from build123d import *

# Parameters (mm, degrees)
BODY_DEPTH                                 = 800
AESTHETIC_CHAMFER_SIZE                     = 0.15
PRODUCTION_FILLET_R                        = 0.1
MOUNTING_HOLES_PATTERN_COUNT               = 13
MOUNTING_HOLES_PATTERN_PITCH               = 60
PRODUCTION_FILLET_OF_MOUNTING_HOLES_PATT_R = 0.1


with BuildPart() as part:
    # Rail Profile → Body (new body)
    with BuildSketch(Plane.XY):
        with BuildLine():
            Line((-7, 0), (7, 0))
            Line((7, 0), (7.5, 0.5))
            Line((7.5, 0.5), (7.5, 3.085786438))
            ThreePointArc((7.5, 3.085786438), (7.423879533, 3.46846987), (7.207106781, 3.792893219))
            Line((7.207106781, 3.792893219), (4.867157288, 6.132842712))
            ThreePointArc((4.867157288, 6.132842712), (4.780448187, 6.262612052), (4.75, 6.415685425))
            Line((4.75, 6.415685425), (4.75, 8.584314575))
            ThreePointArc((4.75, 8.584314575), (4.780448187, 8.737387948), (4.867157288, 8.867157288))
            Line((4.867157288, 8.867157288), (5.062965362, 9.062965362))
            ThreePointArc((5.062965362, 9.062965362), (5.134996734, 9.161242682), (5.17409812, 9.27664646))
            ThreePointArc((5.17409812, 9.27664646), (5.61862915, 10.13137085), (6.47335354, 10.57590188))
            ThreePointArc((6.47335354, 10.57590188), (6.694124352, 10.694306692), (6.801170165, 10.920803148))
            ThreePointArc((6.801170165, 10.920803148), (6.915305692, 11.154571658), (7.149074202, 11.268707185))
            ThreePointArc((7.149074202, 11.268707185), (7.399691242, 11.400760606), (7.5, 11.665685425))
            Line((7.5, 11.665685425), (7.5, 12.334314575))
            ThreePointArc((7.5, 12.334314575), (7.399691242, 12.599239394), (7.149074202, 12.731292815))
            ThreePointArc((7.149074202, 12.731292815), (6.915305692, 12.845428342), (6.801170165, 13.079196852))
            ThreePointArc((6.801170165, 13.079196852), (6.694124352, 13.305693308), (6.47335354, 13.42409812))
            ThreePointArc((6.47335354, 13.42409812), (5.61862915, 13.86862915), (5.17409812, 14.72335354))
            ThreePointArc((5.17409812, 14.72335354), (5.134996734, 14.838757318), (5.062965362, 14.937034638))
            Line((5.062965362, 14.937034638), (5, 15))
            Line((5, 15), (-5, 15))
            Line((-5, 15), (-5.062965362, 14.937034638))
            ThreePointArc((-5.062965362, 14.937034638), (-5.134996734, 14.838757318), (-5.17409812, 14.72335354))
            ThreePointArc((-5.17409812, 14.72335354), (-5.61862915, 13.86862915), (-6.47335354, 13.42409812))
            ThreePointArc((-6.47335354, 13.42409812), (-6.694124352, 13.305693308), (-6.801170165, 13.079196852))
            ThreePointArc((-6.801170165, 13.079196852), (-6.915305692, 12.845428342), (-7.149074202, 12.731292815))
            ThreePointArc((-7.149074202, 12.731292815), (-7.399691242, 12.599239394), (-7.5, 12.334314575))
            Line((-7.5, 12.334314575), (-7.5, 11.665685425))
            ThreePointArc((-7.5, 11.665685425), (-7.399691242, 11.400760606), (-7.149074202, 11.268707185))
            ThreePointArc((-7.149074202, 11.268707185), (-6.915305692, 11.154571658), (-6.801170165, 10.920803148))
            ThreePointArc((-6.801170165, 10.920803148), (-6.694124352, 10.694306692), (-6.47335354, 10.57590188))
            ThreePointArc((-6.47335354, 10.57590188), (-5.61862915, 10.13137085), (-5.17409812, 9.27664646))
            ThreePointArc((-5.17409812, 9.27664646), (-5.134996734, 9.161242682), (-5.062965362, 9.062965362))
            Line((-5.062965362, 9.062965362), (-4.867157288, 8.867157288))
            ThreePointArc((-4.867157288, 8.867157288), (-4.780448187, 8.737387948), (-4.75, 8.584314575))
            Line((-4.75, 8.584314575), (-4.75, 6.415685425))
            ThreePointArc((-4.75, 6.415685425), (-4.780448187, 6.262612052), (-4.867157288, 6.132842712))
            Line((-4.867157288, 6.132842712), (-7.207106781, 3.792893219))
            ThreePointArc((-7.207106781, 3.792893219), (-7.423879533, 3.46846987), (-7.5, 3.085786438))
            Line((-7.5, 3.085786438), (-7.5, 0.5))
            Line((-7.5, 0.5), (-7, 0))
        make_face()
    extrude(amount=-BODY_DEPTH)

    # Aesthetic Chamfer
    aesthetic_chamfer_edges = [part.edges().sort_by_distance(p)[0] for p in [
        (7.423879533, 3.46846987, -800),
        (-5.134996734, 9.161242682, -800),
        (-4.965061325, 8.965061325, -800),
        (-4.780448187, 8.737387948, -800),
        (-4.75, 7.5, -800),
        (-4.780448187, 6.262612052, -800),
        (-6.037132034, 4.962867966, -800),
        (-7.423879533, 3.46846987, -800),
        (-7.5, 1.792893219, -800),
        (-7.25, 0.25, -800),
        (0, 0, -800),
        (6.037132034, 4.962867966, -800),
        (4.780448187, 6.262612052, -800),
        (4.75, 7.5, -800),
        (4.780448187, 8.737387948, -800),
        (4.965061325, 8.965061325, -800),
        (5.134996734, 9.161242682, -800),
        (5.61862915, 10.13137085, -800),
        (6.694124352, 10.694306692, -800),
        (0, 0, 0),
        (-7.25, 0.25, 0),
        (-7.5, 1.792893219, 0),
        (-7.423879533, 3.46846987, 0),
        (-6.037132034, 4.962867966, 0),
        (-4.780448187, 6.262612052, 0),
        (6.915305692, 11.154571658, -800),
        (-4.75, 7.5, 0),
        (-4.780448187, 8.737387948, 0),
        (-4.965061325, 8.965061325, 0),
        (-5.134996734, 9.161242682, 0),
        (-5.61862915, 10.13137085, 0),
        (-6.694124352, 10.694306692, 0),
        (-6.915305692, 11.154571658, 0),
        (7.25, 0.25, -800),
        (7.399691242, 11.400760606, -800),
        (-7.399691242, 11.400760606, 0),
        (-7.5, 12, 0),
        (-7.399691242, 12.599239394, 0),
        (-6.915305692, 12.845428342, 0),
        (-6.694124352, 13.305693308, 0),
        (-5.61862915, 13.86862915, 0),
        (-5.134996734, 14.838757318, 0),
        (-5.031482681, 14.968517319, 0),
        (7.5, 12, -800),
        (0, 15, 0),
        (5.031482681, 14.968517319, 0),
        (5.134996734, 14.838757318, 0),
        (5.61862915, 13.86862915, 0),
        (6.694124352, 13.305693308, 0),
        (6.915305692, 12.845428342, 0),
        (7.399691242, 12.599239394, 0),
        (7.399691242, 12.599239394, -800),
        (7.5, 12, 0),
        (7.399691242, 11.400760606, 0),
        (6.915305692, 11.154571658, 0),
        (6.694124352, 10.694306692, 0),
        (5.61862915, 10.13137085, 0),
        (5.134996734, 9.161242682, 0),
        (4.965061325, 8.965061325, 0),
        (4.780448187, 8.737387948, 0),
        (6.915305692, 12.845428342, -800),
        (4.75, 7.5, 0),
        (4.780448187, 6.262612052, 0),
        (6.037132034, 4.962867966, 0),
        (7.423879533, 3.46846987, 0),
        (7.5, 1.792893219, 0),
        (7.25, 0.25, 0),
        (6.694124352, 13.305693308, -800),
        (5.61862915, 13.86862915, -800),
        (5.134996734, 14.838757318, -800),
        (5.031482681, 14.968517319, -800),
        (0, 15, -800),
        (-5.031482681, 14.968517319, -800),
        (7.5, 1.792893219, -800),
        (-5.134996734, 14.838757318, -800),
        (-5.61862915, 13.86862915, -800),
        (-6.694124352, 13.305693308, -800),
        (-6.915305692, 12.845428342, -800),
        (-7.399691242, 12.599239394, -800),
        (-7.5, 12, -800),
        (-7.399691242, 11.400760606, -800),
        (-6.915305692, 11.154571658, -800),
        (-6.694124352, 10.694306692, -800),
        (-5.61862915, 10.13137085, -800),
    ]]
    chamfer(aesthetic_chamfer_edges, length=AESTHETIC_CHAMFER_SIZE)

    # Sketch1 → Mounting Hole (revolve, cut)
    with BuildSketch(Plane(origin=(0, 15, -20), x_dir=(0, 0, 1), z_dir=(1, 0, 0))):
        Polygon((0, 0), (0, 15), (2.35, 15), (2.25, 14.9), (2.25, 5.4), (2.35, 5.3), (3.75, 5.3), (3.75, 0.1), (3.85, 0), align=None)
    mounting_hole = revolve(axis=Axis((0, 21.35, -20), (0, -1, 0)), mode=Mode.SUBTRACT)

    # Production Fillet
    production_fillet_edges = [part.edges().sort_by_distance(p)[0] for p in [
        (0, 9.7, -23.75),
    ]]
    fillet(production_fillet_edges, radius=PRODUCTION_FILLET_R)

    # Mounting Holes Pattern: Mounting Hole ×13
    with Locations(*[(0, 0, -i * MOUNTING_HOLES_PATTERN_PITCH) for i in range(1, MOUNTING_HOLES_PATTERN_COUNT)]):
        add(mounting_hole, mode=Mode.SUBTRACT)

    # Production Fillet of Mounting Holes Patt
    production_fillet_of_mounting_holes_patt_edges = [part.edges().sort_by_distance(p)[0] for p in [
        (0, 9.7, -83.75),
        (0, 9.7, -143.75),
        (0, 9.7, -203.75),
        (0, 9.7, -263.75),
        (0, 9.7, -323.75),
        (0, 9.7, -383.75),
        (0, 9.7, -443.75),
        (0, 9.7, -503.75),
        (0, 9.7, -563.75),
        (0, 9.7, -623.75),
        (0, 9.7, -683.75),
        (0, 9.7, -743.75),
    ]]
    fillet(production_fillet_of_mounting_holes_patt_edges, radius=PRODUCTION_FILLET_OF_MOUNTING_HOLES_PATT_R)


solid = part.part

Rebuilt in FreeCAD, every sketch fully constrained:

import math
import FreeCAD as App
import Part
import Sketcher

V = App.Vector


def edges_at(feature, points):
    """Names of the edges that pass closest to the given points."""
    edges = feature.Shape.Edges
    near = lambda p: min(range(len(edges)), key=lambda i: edges[i].distToShape(Part.Vertex(*p))[0])
    return sorted({f"Edge{near(p) + 1}" for p in points})

doc = App.newDocument("Part")
body = doc.addObject("PartDesign::Body", "Body")

# Sketch on XY plane
sketch1 = doc.addObject("Sketcher::SketchObject", "Sketch")
body.addObject(sketch1)
sketch1.AttachmentSupport = (doc.XY_Plane, [""])
sketch1.MapMode = "FlatFace"
sketch1.addGeometry([
    Part.LineSegment(V(-7, 0, 0), V(7, 0, 0)),  # 0
    Part.LineSegment(V(7, 0, 0), V(7.5, 0.5, 0)),  # 1
    Part.LineSegment(V(7.5, 0.5, 0), V(7.5, 3.085786, 0)),  # 2
    Part.ArcOfCircle(Part.Circle(V(6.5, 3.085786, 0), V(0, 0, 1), 1), math.radians(0), math.radians(45)),  # 3
    Part.LineSegment(V(7.207107, 3.792893, 0), V(4.867157, 6.132843, 0)),  # 4
    Part.ArcOfCircle(Part.Circle(V(5.15, 6.415685, 0), V(0, 0, 1), 0.4), math.radians(180), math.radians(225)),  # 5
    Part.LineSegment(V(4.75, 6.415685, 0), V(4.75, 8.584315, 0)),  # 6
    Part.ArcOfCircle(Part.Circle(V(5.15, 8.584315, 0), V(0, 0, 1), 0.4), math.radians(135), math.radians(180)),  # 7
    Part.LineSegment(V(4.867157, 8.867157, 0), V(5.062965, 9.062965, 0)),  # 8
    Part.ArcOfCircle(Part.Circle(V(4.780123, 9.345808, 0), V(0, 0, 1), 0.4), math.radians(-45), math.radians(-9.956709)),  # 9
    Part.ArcOfCircle(Part.Circle(V(6.75, 9, 0), V(0, 0, 1), 1.6), math.radians(99.956709), math.radians(170.043291)),  # 10
    Part.ArcOfCircle(Part.Circle(V(6.404192, 10.969877, 0), V(0, 0, 1), 0.4), math.radians(-80.043291), math.radians(-7.047116)),  # 11
    Part.ArcOfCircle(Part.Circle(V(7.198148, 10.871729, 0), V(0, 0, 1), 0.4), math.radians(97.047116), math.radians(172.952884)),  # 12
    Part.ArcOfCircle(Part.Circle(V(7.1, 11.665685, 0), V(0, 0, 1), 0.4), math.radians(-82.952884), math.radians(0)),  # 13
    Part.LineSegment(V(7.5, 11.665685, 0), V(7.5, 12.334315, 0)),  # 14
    Part.ArcOfCircle(Part.Circle(V(7.1, 12.334315, 0), V(0, 0, 1), 0.4), math.radians(0), math.radians(82.952884)),  # 15
    Part.ArcOfCircle(Part.Circle(V(7.198148, 13.128271, 0), V(0, 0, 1), 0.4), math.radians(-172.952884), math.radians(-97.047116)),  # 16
    Part.ArcOfCircle(Part.Circle(V(6.404192, 13.030123, 0), V(0, 0, 1), 0.4), math.radians(7.047116), math.radians(80.043291)),  # 17
    Part.ArcOfCircle(Part.Circle(V(6.75, 15, 0), V(0, 0, 1), 1.6), math.radians(-170.043291), math.radians(-99.956709)),  # 18
    Part.ArcOfCircle(Part.Circle(V(4.780123, 14.654192, 0), V(0, 0, 1), 0.4), math.radians(9.956709), math.radians(45)),  # 19
    Part.LineSegment(V(5.062965, 14.937035, 0), V(5, 15, 0)),  # 20
    Part.LineSegment(V(5, 15, 0), V(-5, 15, 0)),  # 21
    Part.LineSegment(V(-5, 15, 0), V(-5.062965, 14.937035, 0)),  # 22
    Part.ArcOfCircle(Part.Circle(V(-4.780123, 14.654192, 0), V(0, 0, 1), 0.4), math.radians(135), math.radians(170.043291)),  # 23
    Part.ArcOfCircle(Part.Circle(V(-6.75, 15, 0), V(0, 0, 1), 1.6), math.radians(-80.043291), math.radians(-9.956709)),  # 24
    Part.ArcOfCircle(Part.Circle(V(-6.404192, 13.030123, 0), V(0, 0, 1), 0.4), math.radians(99.956709), math.radians(172.952884)),  # 25
    Part.ArcOfCircle(Part.Circle(V(-7.198148, 13.128271, 0), V(0, 0, 1), 0.4), math.radians(-82.952884), math.radians(-7.047116)),  # 26
    Part.ArcOfCircle(Part.Circle(V(-7.1, 12.334315, 0), V(0, 0, 1), 0.4), math.radians(97.047116), math.radians(180)),  # 27
    Part.LineSegment(V(-7.5, 12.334315, 0), V(-7.5, 11.665685, 0)),  # 28
    Part.ArcOfCircle(Part.Circle(V(-7.1, 11.665685, 0), V(0, 0, 1), 0.4), math.radians(180), math.radians(262.952884)),  # 29
    Part.ArcOfCircle(Part.Circle(V(-7.198148, 10.871729, 0), V(0, 0, 1), 0.4), math.radians(7.047116), math.radians(82.952884)),  # 30
    Part.ArcOfCircle(Part.Circle(V(-6.404192, 10.969877, 0), V(0, 0, 1), 0.4), math.radians(-172.952884), math.radians(-99.956709)),  # 31
    Part.ArcOfCircle(Part.Circle(V(-6.75, 9, 0), V(0, 0, 1), 1.6), math.radians(9.956709), math.radians(80.043291)),  # 32
    Part.ArcOfCircle(Part.Circle(V(-4.780123, 9.345808, 0), V(0, 0, 1), 0.4), math.radians(-170.043291), math.radians(-135)),  # 33
    Part.LineSegment(V(-5.062965, 9.062965, 0), V(-4.867157, 8.867157, 0)),  # 34
    Part.ArcOfCircle(Part.Circle(V(-5.15, 8.584315, 0), V(0, 0, 1), 0.4), math.radians(0), math.radians(45)),  # 35
    Part.LineSegment(V(-4.75, 8.584315, 0), V(-4.75, 6.415685, 0)),  # 36
    Part.ArcOfCircle(Part.Circle(V(-5.15, 6.415685, 0), V(0, 0, 1), 0.4), math.radians(-45), math.radians(0)),  # 37
    Part.LineSegment(V(-4.867157, 6.132843, 0), V(-7.207107, 3.792893, 0)),  # 38
    Part.ArcOfCircle(Part.Circle(V(-6.5, 3.085786, 0), V(0, 0, 1), 1), math.radians(135), math.radians(180)),  # 39
    Part.LineSegment(V(-7.5, 3.085786, 0), V(-7.5, 0.5, 0)),  # 40
    Part.LineSegment(V(-7.5, 0.5, 0), V(-7, 0, 0)),  # 41
], False)
sketch1.addConstraint([
    Sketcher.Constraint("Coincident", 0, 2, 1, 1),
    Sketcher.Constraint("Coincident", 1, 2, 2, 1),
    Sketcher.Constraint("Tangent", 2, 2, 3, 1),
    Sketcher.Constraint("Tangent", 3, 2, 4, 1),
    Sketcher.Constraint("Tangent", 4, 2, 5, 2),
    Sketcher.Constraint("Tangent", 5, 1, 6, 1),
    Sketcher.Constraint("Tangent", 6, 2, 7, 2),
    Sketcher.Constraint("Tangent", 7, 1, 8, 1),
    Sketcher.Constraint("Tangent", 8, 2, 9, 1),
    Sketcher.Constraint("Tangent", 9, 2, 10, 2),
    Sketcher.Constraint("Tangent", 10, 1, 11, 1),
    Sketcher.Constraint("Tangent", 11, 2, 12, 2),
    Sketcher.Constraint("Tangent", 12, 1, 13, 1),
    Sketcher.Constraint("Tangent", 13, 2, 14, 1),
    Sketcher.Constraint("Tangent", 14, 2, 15, 1),
    Sketcher.Constraint("Tangent", 15, 2, 16, 2),
    Sketcher.Constraint("Tangent", 16, 1, 17, 1),
    Sketcher.Constraint("Tangent", 17, 2, 18, 2),
    Sketcher.Constraint("Tangent", 18, 1, 19, 1),
    Sketcher.Constraint("Tangent", 19, 2, 20, 1),
    Sketcher.Constraint("Coincident", 20, 2, 21, 1),
    Sketcher.Constraint("Coincident", 21, 2, 22, 1),
    Sketcher.Constraint("Tangent", 22, 2, 23, 1),
    Sketcher.Constraint("Tangent", 23, 2, 24, 2),
    Sketcher.Constraint("Tangent", 24, 1, 25, 1),
    Sketcher.Constraint("Tangent", 25, 2, 26, 2),
    Sketcher.Constraint("Tangent", 26, 1, 27, 1),
    Sketcher.Constraint("Tangent", 27, 2, 28, 1),
    Sketcher.Constraint("Tangent", 28, 2, 29, 1),
    Sketcher.Constraint("Tangent", 29, 2, 30, 2),
    Sketcher.Constraint("Tangent", 30, 1, 31, 1),
    Sketcher.Constraint("Tangent", 31, 2, 32, 2),
    Sketcher.Constraint("Tangent", 32, 1, 33, 1),
    Sketcher.Constraint("Tangent", 33, 2, 34, 1),
    Sketcher.Constraint("Tangent", 34, 2, 35, 2),
    Sketcher.Constraint("Tangent", 35, 1, 36, 1),
    Sketcher.Constraint("Tangent", 36, 2, 37, 2),
    Sketcher.Constraint("Tangent", 37, 1, 38, 1),
    Sketcher.Constraint("Tangent", 38, 2, 39, 1),
    Sketcher.Constraint("Tangent", 39, 2, 40, 1),
    Sketcher.Constraint("Coincident", 40, 2, 41, 1),
    Sketcher.Constraint("Coincident", 41, 2, 0, 1),
    Sketcher.Constraint("Horizontal", 0),
    Sketcher.Constraint("Vertical", 2),
    Sketcher.Constraint("Vertical", 6),
    Sketcher.Constraint("Vertical", 14),
    Sketcher.Constraint("Horizontal", 21),
    Sketcher.Constraint("Vertical", 28),
    Sketcher.Constraint("Vertical", 36),
    Sketcher.Constraint("Vertical", 40),
    Sketcher.Constraint("Equal", 5, 7),
    Sketcher.Constraint("Equal", 7, 9),
    Sketcher.Constraint("Equal", 9, 11),
    Sketcher.Constraint("Equal", 11, 12),
    Sketcher.Constraint("Equal", 12, 13),
    Sketcher.Constraint("Equal", 13, 15),
    Sketcher.Constraint("Equal", 15, 16),
    Sketcher.Constraint("Equal", 16, 17),
    Sketcher.Constraint("Equal", 10, 18),
    Sketcher.Constraint("Equal", 17, 19),
    Sketcher.Constraint("Equal", 19, 23),
    Sketcher.Constraint("Equal", 18, 24),
    Sketcher.Constraint("Equal", 23, 25),
    Sketcher.Constraint("Equal", 25, 26),
    Sketcher.Constraint("Equal", 26, 27),
    Sketcher.Constraint("Equal", 27, 29),
    Sketcher.Constraint("Equal", 29, 30),
    Sketcher.Constraint("Equal", 30, 31),
    Sketcher.Constraint("Equal", 24, 32),
    Sketcher.Constraint("Equal", 31, 33),
    Sketcher.Constraint("Equal", 33, 35),
    Sketcher.Constraint("Equal", 35, 37),
    Sketcher.Constraint("Equal", 3, 39),
    Sketcher.Constraint("Symmetric", 0, 2, 41, 2, -1, 1),
    Sketcher.Constraint("Symmetric", 19, 3, 23, 3, -2),
    Sketcher.Constraint("Symmetric", 17, 3, 25, 3, -2),
    Sketcher.Constraint("Symmetric", 15, 3, 27, 3, -2),
    Sketcher.Constraint("Symmetric", 12, 3, 30, 3, -2),
    Sketcher.Constraint("Symmetric", 10, 3, 32, 3, -2),
    Sketcher.Constraint("Symmetric", 7, 3, 35, 3, -2),
    Sketcher.Constraint("Symmetric", 3, 3, 39, 3, -2),
    Sketcher.Constraint("Perpendicular", 1, 4),
    Sketcher.Constraint("Perpendicular", 4, 8),
    Sketcher.Constraint("Perpendicular", 8, 20),
    Sketcher.Constraint("Perpendicular", 20, 22),
    Sketcher.Constraint("Perpendicular", 22, 34),
    Sketcher.Constraint("Perpendicular", 34, 38),
    Sketcher.Constraint("Perpendicular", 38, 41),
    Sketcher.Constraint("Horizontal", 9, 3, 33, 3),
    Sketcher.Constraint("Horizontal", 24, 3, 20, 2),
    Sketcher.Constraint("Vertical", 12, 3, 16, 3),
    Sketcher.Constraint("Vertical", 11, 3, 17, 3),
    Sketcher.Constraint("Vertical", 10, 3, 18, 3),
    Sketcher.Constraint("Vertical", 9, 3, 19, 3),
    Sketcher.Constraint("Vertical", 2, 2, 13, 2),
    Sketcher.Constraint("Radius", 3, 1.0),
    Sketcher.Constraint("Radius", 5, 0.4),
    Sketcher.Constraint("Radius", 10, 1.6),
    Sketcher.Constraint("DistanceX", 0, 1, 0, 2, 14.0),
    Sketcher.Constraint("DistanceX", 21, 2, 21, 1, 10.0),
    Sketcher.Constraint("DistanceY", -1, 1, 10, 3, 9.0),
    Sketcher.Constraint("DistanceY", -1, 1, 18, 3, 15.0),
    Sketcher.Constraint("DistanceX", -1, 1, 3, 3, 6.5),
    Sketcher.Constraint("DistanceX", -1, 1, 5, 3, 5.15),
    Sketcher.Constraint("DistanceX", -1, 1, 10, 3, 6.75),
    Sketcher.Constraint("DistanceY", 6, 1, 6, 2, 2.168629),
    Sketcher.Constraint("DistanceY", 14, 1, 14, 2, 0.668629),
    Sketcher.Constraint("DistanceY", -1, 1, 10, 1, 10.575902),
])
pad1 = doc.addObject("PartDesign::Pad", "Pad")
body.addObject(pad1)
pad1.Profile = sketch1
pad1.Length = 800
pad1.Reversed = True
doc.recompute()

chamfer = doc.addObject("PartDesign::Chamfer", "Chamfer")
body.addObject(chamfer)
chamfer.Base = (pad1, edges_at(pad1, [
    (7.424, 3.468, -800),
    (-5.135, 9.161, -800),
    (-4.965, 8.965, -800),
    (-4.78, 8.737, -800),
    (-4.75, 7.5, -800),
    (-4.78, 6.263, -800),
    (-6.037, 4.963, -800),
    (-7.424, 3.468, -800),
    (-7.5, 1.793, -800),
    (-7.25, 0.25, -800),
    (0, 0, -800),
    (6.037, 4.963, -800),
    (4.78, 6.263, -800),
    (4.75, 7.5, -800),
    (4.78, 8.737, -800),
    (4.965, 8.965, -800),
    (5.135, 9.161, -800),
    (5.619, 10.131, -800),
    (6.694, 10.694, -800),
    (0, 0, 0),
    (-7.25, 0.25, 0),
    (-7.5, 1.793, 0),
    (-7.424, 3.468, 0),
    (-6.037, 4.963, 0),
    (-4.78, 6.263, 0),
    (6.915, 11.155, -800),
    (-4.75, 7.5, 0),
    (-4.78, 8.737, 0),
    (-4.965, 8.965, 0),
    (-5.135, 9.161, 0),
    (-5.619, 10.131, 0),
    (-6.694, 10.694, 0),
    (-6.915, 11.155, 0),
    (7.25, 0.25, -800),
    (7.4, 11.401, -800),
    (-7.4, 11.401, 0),
    (-7.5, 12, 0),
    (-7.4, 12.599, 0),
    (-6.915, 12.845, 0),
    (-6.694, 13.306, 0),
    (-5.619, 13.869, 0),
    (-5.135, 14.839, 0),
    (-5.031, 14.969, 0),
    (7.5, 12, -800),
    (0, 15, 0),
    (5.031, 14.969, 0),
    (5.135, 14.839, 0),
    (5.619, 13.869, 0),
    (6.694, 13.306, 0),
    (6.915, 12.845, 0),
    (7.4, 12.599, 0),
    (7.4, 12.599, -800),
    (7.5, 12, 0),
    (7.4, 11.401, 0),
    (6.915, 11.155, 0),
    (6.694, 10.694, 0),
    (5.619, 10.131, 0),
    (5.135, 9.161, 0),
    (4.965, 8.965, 0),
    (4.78, 8.737, 0),
    (6.915, 12.845, -800),
    (4.75, 7.5, 0),
    (4.78, 6.263, 0),
    (6.037, 4.963, 0),
    (7.424, 3.468, 0),
    (7.5, 1.793, 0),
    (7.25, 0.25, 0),
    (6.694, 13.306, -800),
    (5.619, 13.869, -800),
    (5.135, 14.839, -800),
    (5.031, 14.969, -800),
    (0, 15, -800),
    (-5.031, 14.969, -800),
    (7.5, 1.793, -800),
    (-5.135, 14.839, -800),
    (-5.619, 13.869, -800),
    (-6.694, 13.306, -800),
    (-6.915, 12.845, -800),
    (-7.4, 12.599, -800),
    (-7.5, 12, -800),
    (-7.4, 11.401, -800),
    (-6.915, 11.155, -800),
    (-6.694, 10.694, -800),
    (-5.619, 10.131, -800),
]))
chamfer.Size = 0.15

# Sketch on YZ plane
sketch2 = doc.addObject("Sketcher::SketchObject", "Sketch001")
body.addObject(sketch2)
sketch2.AttachmentSupport = (doc.YZ_Plane, [""])
sketch2.MapMode = "FlatFace"
sketch2.addGeometry([
    Part.LineSegment(V(0, -20, 0), V(15, -20, 0)),  # 0
    Part.LineSegment(V(15, -20, 0), V(15, -16.15, 0)),  # 1
    Part.LineSegment(V(15, -16.15, 0), V(14.9, -16.25, 0)),  # 2
    Part.LineSegment(V(14.9, -16.25, 0), V(9.7, -16.25, 0)),  # 3
    Part.LineSegment(V(9.7, -16.25, 0), V(9.7, -17.65, 0)),  # 4
    Part.LineSegment(V(9.7, -17.65, 0), V(9.6, -17.75, 0)),  # 5
    Part.LineSegment(V(9.6, -17.75, 0), V(0.1, -17.75, 0)),  # 6
    Part.LineSegment(V(0.1, -17.75, 0), V(0, -17.65, 0)),  # 7
    Part.LineSegment(V(0, -17.65, 0), V(0, -20, 0)),  # 8
], False)
sketch2.addGeometry(Part.LineSegment(V(15, -20, 0), V(0, -20, 0)), True)  # axis
sketch2.addConstraint([
    Sketcher.Constraint("Coincident", 0, 2, 1, 1),
    Sketcher.Constraint("Coincident", 1, 2, 2, 1),
    Sketcher.Constraint("Coincident", 2, 2, 3, 1),
    Sketcher.Constraint("Coincident", 3, 2, 4, 1),
    Sketcher.Constraint("Coincident", 4, 2, 5, 1),
    Sketcher.Constraint("Coincident", 5, 2, 6, 1),
    Sketcher.Constraint("Coincident", 6, 2, 7, 1),
    Sketcher.Constraint("Coincident", 7, 2, 8, 1),
    Sketcher.Constraint("Coincident", 8, 2, 0, 1),
    Sketcher.Constraint("Horizontal", 0),
    Sketcher.Constraint("Vertical", 1),
    Sketcher.Constraint("Horizontal", 3),
    Sketcher.Constraint("Vertical", 4),
    Sketcher.Constraint("Horizontal", 6),
    Sketcher.Constraint("Vertical", 8),
    Sketcher.Constraint("Horizontal", 9),
    Sketcher.Constraint("Coincident", 9, 1, 0, 2),
    Sketcher.Constraint("PointOnObject", 7, 2, -2),
    Sketcher.Constraint("PointOnObject", 9, 2, -2),
    Sketcher.Constraint("Parallel", 2, 5),
    Sketcher.Constraint("Perpendicular", 5, 7),
    Sketcher.Constraint("Horizontal", 4, 2, 7, 2),
    Sketcher.Constraint("Equal", 2, 5),
    Sketcher.Constraint("Equal", 5, 7),
    Sketcher.Constraint("DistanceX", 0, 1, 0, 2, 15.0),
    Sketcher.Constraint("DistanceX", 3, 2, 3, 1, 5.2),
    Sketcher.Constraint("DistanceX", 6, 2, 6, 1, 9.5),
    Sketcher.Constraint("DistanceY", 4, 2, 4, 1, 1.4),
    Sketcher.Constraint("DistanceY", 0, 2, -1, 1, 20.0),
    Sketcher.Constraint("DistanceY", 1, 1, 1, 2, 3.85),
])
groove = doc.addObject("PartDesign::Groove", "Groove")
body.addObject(groove)
groove.Profile = sketch2
groove.ReferenceAxis = (sketch2, ["Axis0"])
groove.Angle = 360
doc.recompute()

fillet = doc.addObject("PartDesign::Fillet", "Fillet")
body.addObject(fillet)
fillet.Base = (groove, edges_at(groove, [(0, 9.7, -23.75)]))
fillet.Radius = 0.1
doc.recompute()

linearpattern = doc.addObject("PartDesign::LinearPattern", "LinearPattern")
body.addObject(linearpattern)
linearpattern.Originals = [groove]
linearpattern.Direction = (doc.Z_Axis, [""])
linearpattern.Mode = "offset"
linearpattern.Offset = 60
linearpattern.Occurrences = 13
linearpattern.Reversed = True
body.Tip = linearpattern
doc.recompute()

fillet2 = doc.addObject("PartDesign::Fillet", "Fillet001")
body.addObject(fillet2)
fillet2.Base = (linearpattern, edges_at(linearpattern, [
    (0, 9.7, -83.75),
    (0, 9.7, -143.75),
    (0, 9.7, -203.75),
    (0, 9.7, -263.75),
    (0, 9.7, -323.75),
    (0, 9.7, -383.75),
    (0, 9.7, -443.75),
    (0, 9.7, -503.75),
    (0, 9.7, -563.75),
    (0, 9.7, -623.75),
    (0, 9.7, -683.75),
    (0, 9.7, -743.75),
]))
fillet2.Radius = 0.1

doc.recompute()
